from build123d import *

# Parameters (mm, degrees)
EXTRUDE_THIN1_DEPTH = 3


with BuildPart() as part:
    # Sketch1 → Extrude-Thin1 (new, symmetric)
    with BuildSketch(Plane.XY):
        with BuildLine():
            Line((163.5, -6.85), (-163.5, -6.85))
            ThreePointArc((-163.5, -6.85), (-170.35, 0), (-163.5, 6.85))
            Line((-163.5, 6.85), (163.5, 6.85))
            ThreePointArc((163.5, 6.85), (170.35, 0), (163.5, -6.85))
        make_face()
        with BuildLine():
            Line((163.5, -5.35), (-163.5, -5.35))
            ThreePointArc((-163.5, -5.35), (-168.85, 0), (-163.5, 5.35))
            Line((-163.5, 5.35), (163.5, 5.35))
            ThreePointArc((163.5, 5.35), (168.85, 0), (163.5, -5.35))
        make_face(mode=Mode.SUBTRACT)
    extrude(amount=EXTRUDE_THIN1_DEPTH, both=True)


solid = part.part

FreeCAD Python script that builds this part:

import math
import FreeCAD as App
import Part
import Sketcher
Q = App.Units.Quantity

doc = App.newDocument("Part")
body = doc.addObject("PartDesign::Body", "Body")

# Sketch on XY plane
sketch1 = doc.addObject("Sketcher::SketchObject", "Sketch")
body.addObject(sketch1)
sketch1.AttachmentSupport = (doc.XY_Plane, [""])
sketch1.MapMode = "FlatFace"
sketch1.addGeometry(Part.LineSegment(App.Vector(-163.5, -6.85, 0), App.Vector(163.5, -6.85, 0)), False)
sketch1.addGeometry(Part.ArcOfCircle(Part.Circle(App.Vector(163.5, 0, 0), App.Vector(0, 0, 1), 6.85), math.radians(-90), math.radians(90)), False)
sketch1.addGeometry(Part.LineSegment(App.Vector(163.5, 6.85, 0), App.Vector(-163.5, 6.85, 0)), False)
sketch1.addGeometry(Part.ArcOfCircle(Part.Circle(App.Vector(-163.5, 0, 0), App.Vector(0, 0, 1), 6.85), math.radians(90), math.radians(270)), False)
sketch1.addGeometry(Part.LineSegment(App.Vector(163.5, -5.35, 0), App.Vector(-163.5, -5.35, 0)), False)
sketch1.addGeometry(Part.ArcOfCircle(Part.Circle(App.Vector(-163.5, 0, 0), App.Vector(0, 0, 1), 5.35), math.radians(90), math.radians(270)), False)
sketch1.addGeometry(Part.LineSegment(App.Vector(-163.5, 5.35, 0), App.Vector(163.5, 5.35, 0)), False)
sketch1.addGeometry(Part.ArcOfCircle(Part.Circle(App.Vector(163.5, 0, 0), App.Vector(0, 0, 1), 5.35), math.radians(-90), math.radians(90)), False)
sketch1.addConstraint(Sketcher.Constraint("Tangent", 0, 2, 1, 1))
sketch1.addConstraint(Sketcher.Constraint("Tangent", 1, 2, 2, 1))
sketch1.addConstraint(Sketcher.Constraint("Tangent", 2, 2, 3, 1))
sketch1.addConstraint(Sketcher.Constraint("Tangent", 3, 2, 0, 1))
sketch1.addConstraint(Sketcher.Constraint("Tangent", 4, 2, 5, 2))
sketch1.addConstraint(Sketcher.Constraint("Tangent", 5, 1, 6, 1))
sketch1.addConstraint(Sketcher.Constraint("Tangent", 6, 2, 7, 2))
sketch1.addConstraint(Sketcher.Constraint("Tangent", 7, 1, 4, 1))
sketch1.addConstraint(Sketcher.Constraint("Horizontal", 0))
sketch1.addConstraint(Sketcher.Constraint("Horizontal", 2))
sketch1.addConstraint(Sketcher.Constraint("Horizontal", 4))
sketch1.addConstraint(Sketcher.Constraint("Horizontal", 6))
sketch1.addConstraint(Sketcher.Constraint("Coincident", 5, 3, 3, 3))
sketch1.addConstraint(Sketcher.Constraint("Symmetric", 1, 3, 3, 3, -1, 1))
sketch1.addConstraint(Sketcher.Constraint("Vertical", 7, 3, 0, 2))
sketch1.addConstraint(Sketcher.Constraint("DistanceX", 0, 1, 0, 2, Q("327 mm")))
sketch1.addConstraint(Sketcher.Constraint("Radius", 1, Q("6.85 mm")))
sketch1.addConstraint(Sketcher.Constraint("Radius", 5, Q("5.35 mm")))
pad1 = doc.addObject("PartDesign::Pad", "Pad")
body.addObject(pad1)
pad1.Profile = sketch1
pad1.Length = 6
pad1.Midplane = True

doc.recompute()
